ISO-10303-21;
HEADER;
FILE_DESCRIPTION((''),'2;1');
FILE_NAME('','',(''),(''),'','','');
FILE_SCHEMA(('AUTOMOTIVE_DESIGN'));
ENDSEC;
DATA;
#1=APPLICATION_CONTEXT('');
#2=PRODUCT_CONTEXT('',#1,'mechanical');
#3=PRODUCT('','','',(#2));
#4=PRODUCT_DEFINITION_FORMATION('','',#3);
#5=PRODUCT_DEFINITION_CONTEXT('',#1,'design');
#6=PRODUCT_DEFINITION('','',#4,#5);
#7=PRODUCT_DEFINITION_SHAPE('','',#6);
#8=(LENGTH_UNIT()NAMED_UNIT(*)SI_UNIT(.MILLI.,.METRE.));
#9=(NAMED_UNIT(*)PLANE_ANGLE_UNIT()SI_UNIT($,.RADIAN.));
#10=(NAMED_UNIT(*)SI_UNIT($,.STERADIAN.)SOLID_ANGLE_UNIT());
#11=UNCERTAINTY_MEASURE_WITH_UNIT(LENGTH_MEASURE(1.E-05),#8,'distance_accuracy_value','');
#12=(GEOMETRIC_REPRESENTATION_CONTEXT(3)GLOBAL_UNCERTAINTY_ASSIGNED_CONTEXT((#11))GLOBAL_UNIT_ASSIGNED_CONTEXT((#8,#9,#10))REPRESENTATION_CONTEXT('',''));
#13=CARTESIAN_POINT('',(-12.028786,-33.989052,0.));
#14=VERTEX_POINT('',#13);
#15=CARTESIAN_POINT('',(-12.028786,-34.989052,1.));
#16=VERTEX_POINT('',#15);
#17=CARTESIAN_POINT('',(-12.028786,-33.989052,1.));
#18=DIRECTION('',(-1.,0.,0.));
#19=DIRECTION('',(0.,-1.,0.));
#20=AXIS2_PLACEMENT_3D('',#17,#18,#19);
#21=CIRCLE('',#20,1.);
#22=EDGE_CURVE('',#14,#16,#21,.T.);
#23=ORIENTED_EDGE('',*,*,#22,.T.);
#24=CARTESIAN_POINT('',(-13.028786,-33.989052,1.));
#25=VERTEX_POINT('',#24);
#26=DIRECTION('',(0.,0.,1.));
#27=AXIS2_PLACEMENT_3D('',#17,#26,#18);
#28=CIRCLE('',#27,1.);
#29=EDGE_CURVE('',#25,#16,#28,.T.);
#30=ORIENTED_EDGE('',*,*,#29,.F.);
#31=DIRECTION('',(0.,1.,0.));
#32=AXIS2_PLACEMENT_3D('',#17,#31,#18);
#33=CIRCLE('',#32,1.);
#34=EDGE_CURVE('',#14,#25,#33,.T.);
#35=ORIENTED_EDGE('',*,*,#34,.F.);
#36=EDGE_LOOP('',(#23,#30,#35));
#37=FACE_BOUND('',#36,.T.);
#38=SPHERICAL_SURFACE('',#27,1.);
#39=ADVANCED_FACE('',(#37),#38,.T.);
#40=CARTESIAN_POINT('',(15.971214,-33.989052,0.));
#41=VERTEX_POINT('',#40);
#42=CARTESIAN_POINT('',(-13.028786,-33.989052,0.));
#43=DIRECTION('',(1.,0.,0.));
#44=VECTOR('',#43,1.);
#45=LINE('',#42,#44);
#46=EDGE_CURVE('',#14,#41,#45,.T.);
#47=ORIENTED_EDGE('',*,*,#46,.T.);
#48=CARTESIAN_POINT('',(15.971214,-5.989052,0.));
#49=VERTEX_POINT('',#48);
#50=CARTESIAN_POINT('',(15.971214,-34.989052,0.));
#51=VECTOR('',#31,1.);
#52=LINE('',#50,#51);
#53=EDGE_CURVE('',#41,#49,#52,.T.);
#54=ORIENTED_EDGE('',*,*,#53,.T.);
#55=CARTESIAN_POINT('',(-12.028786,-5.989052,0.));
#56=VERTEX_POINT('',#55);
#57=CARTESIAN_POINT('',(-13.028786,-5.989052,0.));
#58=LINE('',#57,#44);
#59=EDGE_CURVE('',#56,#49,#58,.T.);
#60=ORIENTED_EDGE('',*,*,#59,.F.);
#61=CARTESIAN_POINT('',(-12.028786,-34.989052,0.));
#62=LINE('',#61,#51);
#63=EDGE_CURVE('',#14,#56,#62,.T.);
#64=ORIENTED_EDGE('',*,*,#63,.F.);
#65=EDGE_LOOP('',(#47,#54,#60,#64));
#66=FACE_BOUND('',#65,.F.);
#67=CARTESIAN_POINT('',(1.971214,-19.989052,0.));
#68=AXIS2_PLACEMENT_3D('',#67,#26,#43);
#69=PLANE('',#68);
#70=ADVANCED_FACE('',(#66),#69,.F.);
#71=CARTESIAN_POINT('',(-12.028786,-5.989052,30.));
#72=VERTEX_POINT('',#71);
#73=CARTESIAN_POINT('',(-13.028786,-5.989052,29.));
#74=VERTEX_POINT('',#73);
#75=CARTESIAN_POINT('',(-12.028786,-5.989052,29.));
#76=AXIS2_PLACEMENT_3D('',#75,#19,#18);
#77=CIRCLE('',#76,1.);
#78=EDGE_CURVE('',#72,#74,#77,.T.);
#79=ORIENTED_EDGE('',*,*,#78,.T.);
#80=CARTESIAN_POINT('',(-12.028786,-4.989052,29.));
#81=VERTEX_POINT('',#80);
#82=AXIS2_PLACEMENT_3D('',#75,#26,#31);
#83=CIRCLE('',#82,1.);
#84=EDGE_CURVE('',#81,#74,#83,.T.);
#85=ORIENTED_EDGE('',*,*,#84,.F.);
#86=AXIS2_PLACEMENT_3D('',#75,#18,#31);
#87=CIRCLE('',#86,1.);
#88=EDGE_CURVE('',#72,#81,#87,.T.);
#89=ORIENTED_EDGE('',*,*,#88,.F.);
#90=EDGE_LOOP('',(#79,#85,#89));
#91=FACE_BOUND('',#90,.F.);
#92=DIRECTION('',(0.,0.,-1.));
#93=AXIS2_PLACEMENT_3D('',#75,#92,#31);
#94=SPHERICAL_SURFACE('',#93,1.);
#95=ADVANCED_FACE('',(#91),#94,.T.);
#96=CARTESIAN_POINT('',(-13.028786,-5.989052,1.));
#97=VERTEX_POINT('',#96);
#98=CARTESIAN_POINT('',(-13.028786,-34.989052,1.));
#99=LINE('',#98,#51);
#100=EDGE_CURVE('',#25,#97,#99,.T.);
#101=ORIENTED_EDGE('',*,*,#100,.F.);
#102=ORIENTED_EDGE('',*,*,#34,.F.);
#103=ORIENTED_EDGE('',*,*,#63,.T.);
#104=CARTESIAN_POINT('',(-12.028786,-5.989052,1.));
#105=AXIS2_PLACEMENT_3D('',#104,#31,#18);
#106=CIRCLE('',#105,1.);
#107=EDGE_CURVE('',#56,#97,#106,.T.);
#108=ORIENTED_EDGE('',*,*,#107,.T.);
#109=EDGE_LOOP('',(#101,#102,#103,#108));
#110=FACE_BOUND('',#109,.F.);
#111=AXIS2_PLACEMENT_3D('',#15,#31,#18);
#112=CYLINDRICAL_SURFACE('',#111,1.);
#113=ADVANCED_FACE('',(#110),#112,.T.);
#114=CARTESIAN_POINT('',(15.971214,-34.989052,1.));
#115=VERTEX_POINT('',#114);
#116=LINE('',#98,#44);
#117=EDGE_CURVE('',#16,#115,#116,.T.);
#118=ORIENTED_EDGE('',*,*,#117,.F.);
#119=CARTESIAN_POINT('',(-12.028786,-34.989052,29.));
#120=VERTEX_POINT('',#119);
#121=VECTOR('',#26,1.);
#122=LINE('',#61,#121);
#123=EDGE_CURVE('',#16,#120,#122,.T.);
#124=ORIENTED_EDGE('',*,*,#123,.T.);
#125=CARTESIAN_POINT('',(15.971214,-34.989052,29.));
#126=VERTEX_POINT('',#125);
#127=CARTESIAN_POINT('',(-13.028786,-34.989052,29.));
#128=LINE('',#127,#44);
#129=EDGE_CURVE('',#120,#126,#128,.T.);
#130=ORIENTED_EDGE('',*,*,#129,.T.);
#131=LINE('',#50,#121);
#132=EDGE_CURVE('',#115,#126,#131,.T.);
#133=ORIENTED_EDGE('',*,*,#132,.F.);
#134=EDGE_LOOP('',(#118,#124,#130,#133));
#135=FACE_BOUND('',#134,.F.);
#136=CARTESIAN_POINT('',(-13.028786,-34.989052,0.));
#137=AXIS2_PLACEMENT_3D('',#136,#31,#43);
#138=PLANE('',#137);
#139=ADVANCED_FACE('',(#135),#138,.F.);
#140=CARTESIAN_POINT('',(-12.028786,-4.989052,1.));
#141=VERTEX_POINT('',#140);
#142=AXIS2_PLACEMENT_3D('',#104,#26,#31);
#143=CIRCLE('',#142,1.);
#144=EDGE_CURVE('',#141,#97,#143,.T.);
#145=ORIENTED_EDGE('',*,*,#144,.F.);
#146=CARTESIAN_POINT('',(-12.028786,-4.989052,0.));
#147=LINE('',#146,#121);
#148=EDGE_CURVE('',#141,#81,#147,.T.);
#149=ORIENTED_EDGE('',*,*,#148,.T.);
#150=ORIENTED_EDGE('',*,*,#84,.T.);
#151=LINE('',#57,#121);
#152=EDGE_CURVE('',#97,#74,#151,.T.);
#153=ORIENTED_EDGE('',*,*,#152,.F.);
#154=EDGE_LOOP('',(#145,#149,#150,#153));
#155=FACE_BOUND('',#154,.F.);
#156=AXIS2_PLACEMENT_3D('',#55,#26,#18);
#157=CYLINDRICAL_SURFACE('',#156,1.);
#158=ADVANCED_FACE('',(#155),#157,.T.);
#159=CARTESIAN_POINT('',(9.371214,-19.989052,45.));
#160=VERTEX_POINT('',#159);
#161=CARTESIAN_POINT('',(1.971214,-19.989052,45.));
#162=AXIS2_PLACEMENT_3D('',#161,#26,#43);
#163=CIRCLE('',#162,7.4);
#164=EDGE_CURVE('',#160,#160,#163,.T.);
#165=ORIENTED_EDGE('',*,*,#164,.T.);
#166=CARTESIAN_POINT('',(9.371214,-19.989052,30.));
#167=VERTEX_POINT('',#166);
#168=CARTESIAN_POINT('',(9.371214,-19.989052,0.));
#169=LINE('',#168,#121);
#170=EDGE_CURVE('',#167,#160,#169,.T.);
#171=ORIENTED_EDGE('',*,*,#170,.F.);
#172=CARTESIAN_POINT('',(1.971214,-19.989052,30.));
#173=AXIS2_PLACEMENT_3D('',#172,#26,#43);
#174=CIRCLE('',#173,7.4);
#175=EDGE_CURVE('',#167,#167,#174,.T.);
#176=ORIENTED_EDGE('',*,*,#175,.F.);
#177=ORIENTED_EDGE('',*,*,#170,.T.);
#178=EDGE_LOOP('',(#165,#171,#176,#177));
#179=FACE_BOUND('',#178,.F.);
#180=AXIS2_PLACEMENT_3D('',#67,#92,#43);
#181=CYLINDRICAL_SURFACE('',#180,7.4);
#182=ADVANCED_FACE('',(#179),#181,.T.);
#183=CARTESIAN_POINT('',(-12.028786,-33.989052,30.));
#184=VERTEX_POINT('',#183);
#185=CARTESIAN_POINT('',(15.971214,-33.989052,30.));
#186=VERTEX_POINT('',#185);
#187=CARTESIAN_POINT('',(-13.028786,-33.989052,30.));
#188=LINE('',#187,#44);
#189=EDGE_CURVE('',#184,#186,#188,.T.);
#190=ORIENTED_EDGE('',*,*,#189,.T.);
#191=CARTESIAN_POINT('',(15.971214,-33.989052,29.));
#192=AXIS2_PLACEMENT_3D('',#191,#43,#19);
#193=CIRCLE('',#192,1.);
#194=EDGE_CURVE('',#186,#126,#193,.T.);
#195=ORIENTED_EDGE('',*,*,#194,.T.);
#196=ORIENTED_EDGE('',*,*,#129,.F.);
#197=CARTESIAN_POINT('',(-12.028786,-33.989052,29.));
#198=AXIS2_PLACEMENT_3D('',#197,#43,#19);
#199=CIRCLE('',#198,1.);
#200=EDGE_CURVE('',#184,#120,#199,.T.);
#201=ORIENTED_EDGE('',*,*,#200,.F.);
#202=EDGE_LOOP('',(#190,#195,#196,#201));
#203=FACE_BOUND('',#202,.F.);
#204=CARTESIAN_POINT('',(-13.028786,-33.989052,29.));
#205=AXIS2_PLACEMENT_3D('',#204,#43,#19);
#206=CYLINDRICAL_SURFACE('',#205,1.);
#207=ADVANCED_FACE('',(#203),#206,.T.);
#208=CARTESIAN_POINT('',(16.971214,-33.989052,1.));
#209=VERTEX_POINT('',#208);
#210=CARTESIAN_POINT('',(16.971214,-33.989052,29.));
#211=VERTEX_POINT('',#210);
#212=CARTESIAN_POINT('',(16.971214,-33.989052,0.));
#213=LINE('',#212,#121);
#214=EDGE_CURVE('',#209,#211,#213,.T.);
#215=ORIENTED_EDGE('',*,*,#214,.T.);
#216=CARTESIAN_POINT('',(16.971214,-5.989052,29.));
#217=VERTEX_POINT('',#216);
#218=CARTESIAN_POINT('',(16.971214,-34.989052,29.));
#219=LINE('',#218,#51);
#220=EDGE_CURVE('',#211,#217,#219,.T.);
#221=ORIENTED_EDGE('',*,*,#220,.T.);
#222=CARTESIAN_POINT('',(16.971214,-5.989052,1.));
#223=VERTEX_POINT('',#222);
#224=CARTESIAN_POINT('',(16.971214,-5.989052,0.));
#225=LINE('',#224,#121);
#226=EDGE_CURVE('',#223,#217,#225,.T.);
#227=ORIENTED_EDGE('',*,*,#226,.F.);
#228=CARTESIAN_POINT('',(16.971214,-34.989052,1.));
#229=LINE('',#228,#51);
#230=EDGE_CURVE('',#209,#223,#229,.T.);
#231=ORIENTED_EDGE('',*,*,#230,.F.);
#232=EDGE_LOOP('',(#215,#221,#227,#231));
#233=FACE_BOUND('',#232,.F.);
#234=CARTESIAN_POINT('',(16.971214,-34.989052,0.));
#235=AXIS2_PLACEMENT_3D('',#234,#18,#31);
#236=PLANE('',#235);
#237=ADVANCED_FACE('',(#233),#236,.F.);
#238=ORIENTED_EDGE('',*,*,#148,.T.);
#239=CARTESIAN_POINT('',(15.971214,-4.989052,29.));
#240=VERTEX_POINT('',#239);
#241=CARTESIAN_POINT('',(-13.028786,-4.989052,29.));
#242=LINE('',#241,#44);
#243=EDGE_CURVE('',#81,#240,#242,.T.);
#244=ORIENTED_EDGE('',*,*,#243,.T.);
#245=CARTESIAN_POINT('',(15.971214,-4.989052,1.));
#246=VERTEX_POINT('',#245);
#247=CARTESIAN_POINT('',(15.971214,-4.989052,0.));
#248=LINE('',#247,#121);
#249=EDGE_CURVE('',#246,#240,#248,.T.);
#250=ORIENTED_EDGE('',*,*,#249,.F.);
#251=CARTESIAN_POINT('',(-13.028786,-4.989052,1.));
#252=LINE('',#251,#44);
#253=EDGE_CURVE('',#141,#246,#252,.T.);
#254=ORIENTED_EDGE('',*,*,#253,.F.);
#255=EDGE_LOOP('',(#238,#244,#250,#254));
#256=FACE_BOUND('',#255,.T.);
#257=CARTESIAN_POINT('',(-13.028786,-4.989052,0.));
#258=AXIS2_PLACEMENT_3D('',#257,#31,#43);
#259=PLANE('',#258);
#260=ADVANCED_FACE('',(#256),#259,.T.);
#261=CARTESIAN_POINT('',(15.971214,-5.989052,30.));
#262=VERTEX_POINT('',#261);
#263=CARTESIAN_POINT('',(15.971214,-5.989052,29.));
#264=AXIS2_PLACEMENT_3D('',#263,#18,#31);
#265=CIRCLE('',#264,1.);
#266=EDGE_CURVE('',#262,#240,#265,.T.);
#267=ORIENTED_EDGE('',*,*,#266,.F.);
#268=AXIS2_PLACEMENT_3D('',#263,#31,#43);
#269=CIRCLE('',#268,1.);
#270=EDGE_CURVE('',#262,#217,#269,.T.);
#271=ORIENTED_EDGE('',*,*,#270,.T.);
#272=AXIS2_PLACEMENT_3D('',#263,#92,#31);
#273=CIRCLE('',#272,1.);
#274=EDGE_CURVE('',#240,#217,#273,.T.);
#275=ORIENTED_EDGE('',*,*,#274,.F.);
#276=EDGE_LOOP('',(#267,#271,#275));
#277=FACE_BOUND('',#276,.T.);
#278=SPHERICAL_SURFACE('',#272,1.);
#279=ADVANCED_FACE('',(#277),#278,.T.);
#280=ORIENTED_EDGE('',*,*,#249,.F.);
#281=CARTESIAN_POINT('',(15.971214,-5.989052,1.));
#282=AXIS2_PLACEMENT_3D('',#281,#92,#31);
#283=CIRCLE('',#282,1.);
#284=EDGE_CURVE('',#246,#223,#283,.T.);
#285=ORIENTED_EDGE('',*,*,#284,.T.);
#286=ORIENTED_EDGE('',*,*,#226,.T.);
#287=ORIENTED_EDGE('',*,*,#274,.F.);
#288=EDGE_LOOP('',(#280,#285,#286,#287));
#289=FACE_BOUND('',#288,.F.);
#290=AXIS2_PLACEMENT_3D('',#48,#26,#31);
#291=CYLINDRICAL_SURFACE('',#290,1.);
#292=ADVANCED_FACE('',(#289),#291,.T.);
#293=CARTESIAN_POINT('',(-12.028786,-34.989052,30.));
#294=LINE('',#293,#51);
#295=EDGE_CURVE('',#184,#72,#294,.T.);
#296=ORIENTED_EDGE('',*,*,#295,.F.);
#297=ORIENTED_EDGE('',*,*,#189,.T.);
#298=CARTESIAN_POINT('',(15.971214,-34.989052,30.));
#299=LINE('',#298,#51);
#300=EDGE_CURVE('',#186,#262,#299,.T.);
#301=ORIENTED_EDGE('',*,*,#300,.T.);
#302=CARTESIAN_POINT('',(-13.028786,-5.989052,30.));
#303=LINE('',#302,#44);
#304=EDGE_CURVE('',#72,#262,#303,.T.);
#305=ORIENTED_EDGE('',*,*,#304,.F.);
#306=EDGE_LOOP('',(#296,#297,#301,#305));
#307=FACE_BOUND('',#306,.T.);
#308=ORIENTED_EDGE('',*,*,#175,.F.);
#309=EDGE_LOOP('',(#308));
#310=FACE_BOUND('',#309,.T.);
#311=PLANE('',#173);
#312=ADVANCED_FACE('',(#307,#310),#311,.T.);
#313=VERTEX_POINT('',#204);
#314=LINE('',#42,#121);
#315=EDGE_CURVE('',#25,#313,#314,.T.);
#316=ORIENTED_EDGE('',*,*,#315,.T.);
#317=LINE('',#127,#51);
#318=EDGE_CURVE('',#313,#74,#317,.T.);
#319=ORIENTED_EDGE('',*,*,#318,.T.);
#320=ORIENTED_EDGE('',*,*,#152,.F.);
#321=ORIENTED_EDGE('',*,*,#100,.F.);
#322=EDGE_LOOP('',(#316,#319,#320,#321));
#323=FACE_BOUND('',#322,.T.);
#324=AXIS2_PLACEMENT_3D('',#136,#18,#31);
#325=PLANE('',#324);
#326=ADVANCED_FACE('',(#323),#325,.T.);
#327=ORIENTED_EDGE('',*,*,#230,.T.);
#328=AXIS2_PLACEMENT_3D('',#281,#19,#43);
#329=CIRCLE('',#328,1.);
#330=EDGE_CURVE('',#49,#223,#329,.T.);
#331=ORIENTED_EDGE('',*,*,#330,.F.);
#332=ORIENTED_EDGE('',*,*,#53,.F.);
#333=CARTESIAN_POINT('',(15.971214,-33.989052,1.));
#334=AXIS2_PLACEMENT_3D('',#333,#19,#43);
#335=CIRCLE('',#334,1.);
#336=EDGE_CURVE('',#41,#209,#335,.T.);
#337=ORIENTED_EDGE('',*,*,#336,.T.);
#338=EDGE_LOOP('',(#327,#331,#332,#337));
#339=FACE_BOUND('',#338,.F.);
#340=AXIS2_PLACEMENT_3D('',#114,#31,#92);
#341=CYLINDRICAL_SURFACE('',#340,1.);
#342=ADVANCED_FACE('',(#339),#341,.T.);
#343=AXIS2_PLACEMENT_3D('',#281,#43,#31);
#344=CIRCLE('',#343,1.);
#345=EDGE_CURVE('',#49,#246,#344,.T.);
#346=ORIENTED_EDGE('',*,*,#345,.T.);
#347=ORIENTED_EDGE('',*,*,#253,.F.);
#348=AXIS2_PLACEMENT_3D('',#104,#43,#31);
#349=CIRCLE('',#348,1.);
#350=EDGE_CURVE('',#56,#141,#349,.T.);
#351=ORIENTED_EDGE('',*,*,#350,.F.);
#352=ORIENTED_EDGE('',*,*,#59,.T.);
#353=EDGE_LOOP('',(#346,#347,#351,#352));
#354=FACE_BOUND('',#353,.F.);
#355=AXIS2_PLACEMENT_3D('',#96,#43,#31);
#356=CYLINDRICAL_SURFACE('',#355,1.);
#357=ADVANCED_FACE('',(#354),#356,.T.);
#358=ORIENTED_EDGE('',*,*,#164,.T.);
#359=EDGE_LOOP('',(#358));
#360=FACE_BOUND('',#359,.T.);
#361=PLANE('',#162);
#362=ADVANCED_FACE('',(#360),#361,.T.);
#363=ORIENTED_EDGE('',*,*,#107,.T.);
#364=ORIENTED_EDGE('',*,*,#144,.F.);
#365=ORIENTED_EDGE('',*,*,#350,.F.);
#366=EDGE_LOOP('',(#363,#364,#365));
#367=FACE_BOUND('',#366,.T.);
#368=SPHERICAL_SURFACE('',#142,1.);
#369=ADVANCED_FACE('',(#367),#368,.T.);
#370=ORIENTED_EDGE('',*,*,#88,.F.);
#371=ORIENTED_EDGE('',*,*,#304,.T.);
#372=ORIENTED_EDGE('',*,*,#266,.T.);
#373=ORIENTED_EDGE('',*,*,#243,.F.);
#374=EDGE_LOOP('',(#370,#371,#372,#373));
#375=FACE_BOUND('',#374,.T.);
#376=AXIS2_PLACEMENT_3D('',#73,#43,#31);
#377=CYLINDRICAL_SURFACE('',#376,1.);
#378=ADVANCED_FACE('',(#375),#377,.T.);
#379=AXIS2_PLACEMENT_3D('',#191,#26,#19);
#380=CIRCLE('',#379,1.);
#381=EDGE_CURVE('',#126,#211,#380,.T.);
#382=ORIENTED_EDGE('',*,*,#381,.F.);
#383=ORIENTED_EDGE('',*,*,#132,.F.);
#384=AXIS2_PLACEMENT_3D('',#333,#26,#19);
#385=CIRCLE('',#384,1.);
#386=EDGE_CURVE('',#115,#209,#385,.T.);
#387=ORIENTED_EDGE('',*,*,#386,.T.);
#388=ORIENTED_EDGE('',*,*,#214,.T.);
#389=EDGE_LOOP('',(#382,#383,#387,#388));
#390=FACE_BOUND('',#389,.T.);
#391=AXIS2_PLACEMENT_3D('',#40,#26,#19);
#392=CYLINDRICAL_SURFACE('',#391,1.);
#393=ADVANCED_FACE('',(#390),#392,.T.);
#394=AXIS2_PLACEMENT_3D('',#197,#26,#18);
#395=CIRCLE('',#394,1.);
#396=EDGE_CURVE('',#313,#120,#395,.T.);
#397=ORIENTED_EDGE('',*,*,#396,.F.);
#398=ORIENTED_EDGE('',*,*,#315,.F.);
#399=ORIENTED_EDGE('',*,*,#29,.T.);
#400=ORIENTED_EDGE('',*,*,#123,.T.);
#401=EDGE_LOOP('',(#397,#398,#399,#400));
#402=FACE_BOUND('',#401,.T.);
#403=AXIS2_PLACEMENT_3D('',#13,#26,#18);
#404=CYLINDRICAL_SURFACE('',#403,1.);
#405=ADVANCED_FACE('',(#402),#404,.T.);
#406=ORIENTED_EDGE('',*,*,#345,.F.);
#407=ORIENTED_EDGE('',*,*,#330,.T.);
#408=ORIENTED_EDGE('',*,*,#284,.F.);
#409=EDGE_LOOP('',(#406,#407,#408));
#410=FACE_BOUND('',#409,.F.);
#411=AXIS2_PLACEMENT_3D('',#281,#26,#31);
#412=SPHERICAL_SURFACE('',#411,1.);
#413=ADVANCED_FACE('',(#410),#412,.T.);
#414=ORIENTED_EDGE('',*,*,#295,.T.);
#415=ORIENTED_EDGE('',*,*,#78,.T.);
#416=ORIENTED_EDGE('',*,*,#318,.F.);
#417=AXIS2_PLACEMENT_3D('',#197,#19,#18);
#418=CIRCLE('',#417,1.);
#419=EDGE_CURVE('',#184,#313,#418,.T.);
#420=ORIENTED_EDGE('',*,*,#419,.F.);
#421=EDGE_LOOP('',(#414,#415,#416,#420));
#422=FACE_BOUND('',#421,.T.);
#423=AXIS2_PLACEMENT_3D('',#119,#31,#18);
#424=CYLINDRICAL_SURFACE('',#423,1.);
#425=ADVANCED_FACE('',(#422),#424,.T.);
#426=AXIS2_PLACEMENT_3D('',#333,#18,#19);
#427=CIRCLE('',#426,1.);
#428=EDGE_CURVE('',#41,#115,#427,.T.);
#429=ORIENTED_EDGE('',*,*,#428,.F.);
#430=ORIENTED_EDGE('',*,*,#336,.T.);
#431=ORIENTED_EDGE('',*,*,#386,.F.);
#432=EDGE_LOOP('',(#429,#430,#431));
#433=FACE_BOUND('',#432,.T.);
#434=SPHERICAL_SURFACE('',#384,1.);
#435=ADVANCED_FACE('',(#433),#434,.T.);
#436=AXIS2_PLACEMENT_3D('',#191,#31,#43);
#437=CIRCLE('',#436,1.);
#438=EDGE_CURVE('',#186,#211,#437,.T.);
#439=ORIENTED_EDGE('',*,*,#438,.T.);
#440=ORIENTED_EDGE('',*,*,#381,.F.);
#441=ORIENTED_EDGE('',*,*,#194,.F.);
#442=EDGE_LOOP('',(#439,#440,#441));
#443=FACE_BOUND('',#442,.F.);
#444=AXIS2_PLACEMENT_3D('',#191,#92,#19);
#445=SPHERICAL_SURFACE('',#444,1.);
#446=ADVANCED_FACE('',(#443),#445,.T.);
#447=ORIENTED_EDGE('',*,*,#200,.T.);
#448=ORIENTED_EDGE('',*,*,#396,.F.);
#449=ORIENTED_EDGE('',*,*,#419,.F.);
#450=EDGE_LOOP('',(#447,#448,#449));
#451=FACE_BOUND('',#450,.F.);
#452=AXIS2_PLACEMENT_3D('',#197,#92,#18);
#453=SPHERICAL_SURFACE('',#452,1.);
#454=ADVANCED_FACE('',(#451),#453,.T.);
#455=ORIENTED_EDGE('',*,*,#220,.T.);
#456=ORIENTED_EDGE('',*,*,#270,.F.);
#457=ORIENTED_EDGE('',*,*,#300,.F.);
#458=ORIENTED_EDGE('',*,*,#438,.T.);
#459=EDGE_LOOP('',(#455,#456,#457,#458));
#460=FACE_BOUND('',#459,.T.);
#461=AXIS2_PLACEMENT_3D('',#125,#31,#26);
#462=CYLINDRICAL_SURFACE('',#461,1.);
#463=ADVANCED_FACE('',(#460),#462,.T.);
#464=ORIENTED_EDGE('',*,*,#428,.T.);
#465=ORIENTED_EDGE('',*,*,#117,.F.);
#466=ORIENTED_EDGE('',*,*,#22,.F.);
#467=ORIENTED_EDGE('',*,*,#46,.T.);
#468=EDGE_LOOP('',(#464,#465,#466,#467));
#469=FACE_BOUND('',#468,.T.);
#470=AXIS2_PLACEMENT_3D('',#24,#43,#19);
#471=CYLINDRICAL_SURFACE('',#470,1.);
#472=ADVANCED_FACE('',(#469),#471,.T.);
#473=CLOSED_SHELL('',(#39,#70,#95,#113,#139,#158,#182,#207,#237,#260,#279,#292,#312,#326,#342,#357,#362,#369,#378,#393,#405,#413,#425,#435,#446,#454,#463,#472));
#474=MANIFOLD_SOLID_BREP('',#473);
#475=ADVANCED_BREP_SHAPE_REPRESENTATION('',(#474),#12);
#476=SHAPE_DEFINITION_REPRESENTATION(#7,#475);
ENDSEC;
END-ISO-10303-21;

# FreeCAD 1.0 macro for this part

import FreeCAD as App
import Part
import Sketcher

V = App.Vector


def edges_at(feature, points):
    """Names of the edges that pass closest to the given points."""
    edges = feature.Shape.Edges
    near = lambda p: min(range(len(edges)), key=lambda i: edges[i].distToShape(Part.Vertex(*p))[0])
    return sorted({f"Edge{near(p) + 1}" for p in points})

doc = App.newDocument("Part")
body = doc.addObject("PartDesign::Body", "Body")

# Sketch on XY plane
sketch1 = body.newObject("Sketcher::SketchObject", "Sketch")
sketch1.AttachmentSupport = (doc.getObject("XY_Plane"), [""])
sketch1.MapMode = "FlatFace"
sketch1.addGeometry(Part.Circle(V(2, -20, 0), V(0, 0, 1), 7), False)
sketch1.addConstraint([
    Sketcher.Constraint("Diameter", 0, 14.8),
    Sketcher.Constraint("DistanceX", -1, 1, 0, 3, 1.971214),
    Sketcher.Constraint("DistanceY", 0, 3, -1, 1, 19.989052),
])
pad1 = body.newObject("PartDesign::Pad", "Pad")
pad1.Profile = sketch1
pad1.Length = 45

# Sketch on XY plane
sketch2 = body.newObject("Sketcher::SketchObject", "Sketch001")
sketch2.AttachmentSupport = (doc.getObject("XY_Plane"), [""])
sketch2.MapMode = "FlatFace"
sketch2.addGeometry([
    Part.LineSegment(V(-13, -5, 0), V(-13, -35, 0)),  # 0
    Part.LineSegment(V(-13, -35, 0), V(17, -35, 0)),  # 1
    Part.LineSegment(V(17, -35, 0), V(17, -5, 0)),  # 2
    Part.LineSegment(V(17, -5, 0), V(-13, -5, 0)),  # 3
    Part.Circle(V(2, -20, 0), V(0, 0, 1), 7),  # 4
], False)
sketch2.addConstraint([
    Sketcher.Constraint("Coincident", 0, 2, 1, 1),
    Sketcher.Constraint("Coincident", 1, 2, 2, 1),
    Sketcher.Constraint("Coincident", 2, 2, 3, 1),
    Sketcher.Constraint("Coincident", 3, 2, 0, 1),
    Sketcher.Constraint("Vertical", 0),
    Sketcher.Constraint("Horizontal", 1),
    Sketcher.Constraint("Vertical", 2),
    Sketcher.Constraint("Horizontal", 3),
    Sketcher.Constraint("Equal", 3, 0),
    Sketcher.Constraint("Diameter", 4, 14.8),
    Sketcher.Constraint("DistanceX", 1, 1, 1, 2, 30.0),
    Sketcher.Constraint("DistanceX", 0, 2, 4, 3, 15.0),
    Sketcher.Constraint("DistanceY", 0, 2, 4, 3, 15.0),
    Sketcher.Constraint("DistanceX", -1, 1, 4, 3, 1.971214),
    Sketcher.Constraint("DistanceY", 4, 3, -1, 1, 19.989052),
])
pad2 = body.newObject("PartDesign::Pad", "Pad001")
pad2.Profile = sketch2
pad2.Length = 30
doc.recompute()

fillet = body.newObject("PartDesign::Fillet", "Fillet")
fillet.Base = (pad2, edges_at(pad2, [
    (16.971, -4.989, 15),
    (-13.029, -4.989, 15),
    (1.971, -4.989, 0),
    (1.971, -4.989, 30),
    (-13.029, -34.989, 15),
    (-13.029, -19.989, 0),
    (-13.029, -19.989, 30),
    (16.971, -34.989, 15),
    (1.971, -34.989, 0),
    (1.971, -34.989, 30),
    (16.971, -19.989, 0),
    (16.971, -19.989, 30),
]))
fillet.Radius = 1

doc.recompute()
